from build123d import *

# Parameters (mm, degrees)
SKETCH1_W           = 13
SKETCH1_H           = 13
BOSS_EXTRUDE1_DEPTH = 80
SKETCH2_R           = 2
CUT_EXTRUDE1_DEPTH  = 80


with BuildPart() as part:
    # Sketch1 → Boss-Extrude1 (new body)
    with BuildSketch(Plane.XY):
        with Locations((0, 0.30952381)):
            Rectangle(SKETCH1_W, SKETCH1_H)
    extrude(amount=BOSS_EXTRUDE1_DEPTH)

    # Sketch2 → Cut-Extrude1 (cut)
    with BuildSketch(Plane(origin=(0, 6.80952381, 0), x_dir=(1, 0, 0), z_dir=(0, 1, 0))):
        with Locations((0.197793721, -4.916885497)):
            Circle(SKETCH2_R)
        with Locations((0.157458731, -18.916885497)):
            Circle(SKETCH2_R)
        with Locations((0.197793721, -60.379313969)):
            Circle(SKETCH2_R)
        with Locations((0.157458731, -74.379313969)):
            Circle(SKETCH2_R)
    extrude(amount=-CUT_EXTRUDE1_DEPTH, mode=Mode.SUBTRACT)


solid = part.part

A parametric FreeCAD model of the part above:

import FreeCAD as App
import Part
import Sketcher
Q = App.Units.Quantity

doc = App.newDocument("Part")
body = doc.addObject("PartDesign::Body", "Body")

sketch1 = body.newObject("Sketcher::SketchObject", "Sketch")
sketch1.AttachmentSupport = (doc.getObject("XY_Plane"), [""])
sketch1.MapMode = "FlatFace"
sketch1.addGeometry(Part.LineSegment(App.Vector(-6, 7, 0), App.Vector(-6, -6, 0)), False)
sketch1.addGeometry(Part.LineSegment(App.Vector(-6, -6, 0), App.Vector(6, -6, 0)), False)
sketch1.addGeometry(Part.LineSegment(App.Vector(6, -6, 0), App.Vector(6, 7, 0)), False)
sketch1.addGeometry(Part.LineSegment(App.Vector(6, 7, 0), App.Vector(-6, 7, 0)), False)
sketch1.addConstraint(Sketcher.Constraint("Coincident", 0, 2, 1, 1))
sketch1.addConstraint(Sketcher.Constraint("Coincident", 1, 2, 2, 1))
sketch1.addConstraint(Sketcher.Constraint("Coincident", 2, 2, 3, 1))
sketch1.addConstraint(Sketcher.Constraint("Coincident", 3, 2, 0, 1))
sketch1.addConstraint(Sketcher.Constraint("Vertical", 0))
sketch1.addConstraint(Sketcher.Constraint("Horizontal", 1))
sketch1.addConstraint(Sketcher.Constraint("Vertical", 2))
sketch1.addConstraint(Sketcher.Constraint("Horizontal", 3))
sketch1.addConstraint(Sketcher.Constraint("Equal", 3, 0))
sketch1.addConstraint(Sketcher.Constraint("DistanceX", 1, 1, 1, 2, Q("13 mm")))
sketch1.addConstraint(Sketcher.Constraint("DistanceX", 0, 2, -1, 1, Q("6.5 mm")))
sketch1.addConstraint(Sketcher.Constraint("DistanceY", 0, 2, -1, 1, Q("6.190476 mm")))
pad1 = body.newObject("PartDesign::Pad", "Pad")
pad1.Profile = sketch1
pad1.Length = 80

sketch2 = body.newObject("Sketcher::SketchObject", "Sketch001")
sketch2.AttachmentSupport = (doc.getObject("XZ_Plane"), [""])
sketch2.MapMode = "FlatFace"
sketch2.AttachmentOffset = App.Placement(App.Vector(0, 0, -6.809524), App.Rotation())
sketch2.addGeometry(Part.Circle(App.Vector(0.2, 4.9, 0), App.Vector(0, 0, 1), 2), False)
sketch2.addGeometry(Part.Circle(App.Vector(0.2, 18.9, 0), App.Vector(0, 0, 1), 2), False)
sketch2.addGeometry(Part.Circle(App.Vector(0.2, 60.4, 0), App.Vector(0, 0, 1), 2), False)
sketch2.addGeometry(Part.Circle(App.Vector(0.2, 74.4, 0), App.Vector(0, 0, 1), 2), False)
sketch2.addConstraint(Sketcher.Constraint("Equal", 0, 1))
sketch2.addConstraint(Sketcher.Constraint("Equal", 1, 2))
sketch2.addConstraint(Sketcher.Constraint("Equal", 2, 3))
sketch2.addConstraint(Sketcher.Constraint("Vertical", 0, 3, 2, 3))
sketch2.addConstraint(Sketcher.Constraint("Vertical", 1, 3, 3, 3))
sketch2.addConstraint(Sketcher.Constraint("Diameter", 0, Q("4 mm")))
sketch2.addConstraint(Sketcher.Constraint("DistanceY", 0, 3, 1, 3, Q("14 mm")))
sketch2.addConstraint(Sketcher.Constraint("DistanceY", 2, 3, 3, 3, Q("14 mm")))
sketch2.addConstraint(Sketcher.Constraint("DistanceX", -1, 1, 1, 3, Q("0.157459 mm")))
sketch2.addConstraint(Sketcher.Constraint("DistanceY", 1, 3, 2, 3, Q("41.462428 mm")))
sketch2.addConstraint(Sketcher.Constraint("DistanceX", -1, 1, 0, 3, Q("0.197794 mm")))
sketch2.addConstraint(Sketcher.Constraint("DistanceY", -1, 1, 0, 3, Q("4.916885 mm")))
pocket1 = body.newObject("PartDesign::Pocket", "Pocket")
pocket1.Profile = sketch2
pocket1.Length = 80
pocket1.Reversed = True

doc.recompute()
